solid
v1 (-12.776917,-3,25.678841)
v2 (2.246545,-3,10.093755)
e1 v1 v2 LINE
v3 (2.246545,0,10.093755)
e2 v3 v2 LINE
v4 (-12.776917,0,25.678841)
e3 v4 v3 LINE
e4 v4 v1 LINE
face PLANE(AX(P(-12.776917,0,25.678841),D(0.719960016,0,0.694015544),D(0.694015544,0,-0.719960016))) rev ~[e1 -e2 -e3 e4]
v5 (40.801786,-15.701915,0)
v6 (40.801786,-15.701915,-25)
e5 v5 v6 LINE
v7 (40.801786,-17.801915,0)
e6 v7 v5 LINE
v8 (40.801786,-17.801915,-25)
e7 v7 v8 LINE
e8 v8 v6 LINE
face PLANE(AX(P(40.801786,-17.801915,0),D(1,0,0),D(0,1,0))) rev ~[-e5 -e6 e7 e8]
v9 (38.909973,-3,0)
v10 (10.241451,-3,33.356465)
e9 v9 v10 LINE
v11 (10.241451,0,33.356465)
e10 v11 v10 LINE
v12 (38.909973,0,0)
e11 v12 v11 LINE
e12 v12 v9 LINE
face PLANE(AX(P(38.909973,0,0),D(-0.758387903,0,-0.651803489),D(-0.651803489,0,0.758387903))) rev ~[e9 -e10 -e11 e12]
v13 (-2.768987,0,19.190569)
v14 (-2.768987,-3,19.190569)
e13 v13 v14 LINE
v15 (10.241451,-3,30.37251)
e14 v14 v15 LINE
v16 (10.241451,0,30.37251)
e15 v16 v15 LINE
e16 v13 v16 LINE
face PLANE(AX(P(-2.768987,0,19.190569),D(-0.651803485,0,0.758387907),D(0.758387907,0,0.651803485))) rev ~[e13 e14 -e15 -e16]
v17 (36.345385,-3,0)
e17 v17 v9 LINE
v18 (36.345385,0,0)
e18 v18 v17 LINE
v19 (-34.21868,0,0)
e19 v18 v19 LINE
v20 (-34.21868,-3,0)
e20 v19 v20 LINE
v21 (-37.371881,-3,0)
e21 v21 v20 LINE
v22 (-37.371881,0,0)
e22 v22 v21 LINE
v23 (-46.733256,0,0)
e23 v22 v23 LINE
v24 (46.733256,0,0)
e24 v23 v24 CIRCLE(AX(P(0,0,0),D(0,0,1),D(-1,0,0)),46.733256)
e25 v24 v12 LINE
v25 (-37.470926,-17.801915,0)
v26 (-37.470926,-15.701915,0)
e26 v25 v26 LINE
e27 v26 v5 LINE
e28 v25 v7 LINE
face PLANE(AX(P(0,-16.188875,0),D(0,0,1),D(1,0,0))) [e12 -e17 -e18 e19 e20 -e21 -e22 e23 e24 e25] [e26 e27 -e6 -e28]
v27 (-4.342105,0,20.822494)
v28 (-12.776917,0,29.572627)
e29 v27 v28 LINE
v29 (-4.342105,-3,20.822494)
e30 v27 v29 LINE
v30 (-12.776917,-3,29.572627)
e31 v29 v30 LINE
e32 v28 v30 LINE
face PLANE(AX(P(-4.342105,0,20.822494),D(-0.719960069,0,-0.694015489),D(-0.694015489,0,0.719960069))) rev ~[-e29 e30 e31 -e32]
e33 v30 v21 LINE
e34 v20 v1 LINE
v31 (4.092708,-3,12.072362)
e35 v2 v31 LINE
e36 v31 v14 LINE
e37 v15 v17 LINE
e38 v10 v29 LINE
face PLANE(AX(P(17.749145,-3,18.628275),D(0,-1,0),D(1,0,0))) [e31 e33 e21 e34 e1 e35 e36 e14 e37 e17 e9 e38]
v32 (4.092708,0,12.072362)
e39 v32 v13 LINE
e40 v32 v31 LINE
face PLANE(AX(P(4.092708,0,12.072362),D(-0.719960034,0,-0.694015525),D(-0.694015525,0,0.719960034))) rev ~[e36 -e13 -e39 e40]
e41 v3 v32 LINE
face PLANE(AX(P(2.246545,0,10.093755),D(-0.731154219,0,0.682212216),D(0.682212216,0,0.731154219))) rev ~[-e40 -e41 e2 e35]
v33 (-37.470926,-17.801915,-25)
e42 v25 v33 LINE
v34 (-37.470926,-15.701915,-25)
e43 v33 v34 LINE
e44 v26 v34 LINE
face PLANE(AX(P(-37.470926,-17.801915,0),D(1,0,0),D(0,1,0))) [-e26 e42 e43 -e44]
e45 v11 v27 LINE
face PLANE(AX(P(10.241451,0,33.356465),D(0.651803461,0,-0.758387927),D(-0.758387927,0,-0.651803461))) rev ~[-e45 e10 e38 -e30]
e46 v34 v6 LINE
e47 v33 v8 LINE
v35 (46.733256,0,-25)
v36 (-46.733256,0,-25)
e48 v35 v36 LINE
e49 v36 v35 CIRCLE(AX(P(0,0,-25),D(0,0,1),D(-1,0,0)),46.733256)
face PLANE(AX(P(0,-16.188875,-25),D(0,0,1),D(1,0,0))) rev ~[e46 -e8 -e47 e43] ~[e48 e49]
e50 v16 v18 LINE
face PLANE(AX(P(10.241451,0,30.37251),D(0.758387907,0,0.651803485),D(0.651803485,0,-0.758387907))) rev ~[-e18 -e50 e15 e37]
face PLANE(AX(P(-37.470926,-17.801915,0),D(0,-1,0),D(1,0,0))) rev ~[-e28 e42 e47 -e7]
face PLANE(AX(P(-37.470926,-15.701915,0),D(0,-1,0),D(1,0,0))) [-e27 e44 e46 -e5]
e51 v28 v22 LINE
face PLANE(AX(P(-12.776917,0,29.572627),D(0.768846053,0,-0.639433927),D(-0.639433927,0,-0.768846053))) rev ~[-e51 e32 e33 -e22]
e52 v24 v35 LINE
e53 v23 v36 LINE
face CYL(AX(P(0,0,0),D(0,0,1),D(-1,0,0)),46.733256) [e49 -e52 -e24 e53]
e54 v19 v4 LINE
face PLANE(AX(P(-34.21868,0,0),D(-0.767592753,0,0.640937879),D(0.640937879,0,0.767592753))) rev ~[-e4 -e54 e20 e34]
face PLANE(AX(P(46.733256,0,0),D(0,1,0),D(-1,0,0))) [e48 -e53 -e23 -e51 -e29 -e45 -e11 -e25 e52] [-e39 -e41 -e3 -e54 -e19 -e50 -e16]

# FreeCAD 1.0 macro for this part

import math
import FreeCAD as App
import Part
import Sketcher

V = App.Vector

doc = App.newDocument("Part")
body = doc.addObject("PartDesign::Body", "Body")

# Sketch on XY plane
sketch1 = body.newObject("Sketcher::SketchObject", "Sketch")
sketch1.AttachmentSupport = (doc.getObject("XY_Plane"), [""])
sketch1.MapMode = "FlatFace"
sketch1.addGeometry(Part.LineSegment(V(46.733256, 0, 0), V(-46.733256, 0, 0)), False)
sketch1.addGeometry(Part.ArcOfCircle(Part.Circle(V(0, 0, 0), V(0, 0, 1), 46.733256), math.radians(180), math.radians(360)), False)
sketch1.addGeometry(Part.LineSegment(V(40.801786, -17.801915, 0), V(-37.470926, -17.801915, 0)), False)
sketch1.addGeometry(Part.LineSegment(V(-37.470926, -17.801915, 0), V(-37.470926, -15.701915, 0)), False)
sketch1.addGeometry(Part.LineSegment(V(-37.470926, -15.701915, 0), V(40.801786, -15.701915, 0)), False)
sketch1.addGeometry(Part.LineSegment(V(40.801786, -15.701915, 0), V(40.801786, -17.801915, 0)), False)
sketch1.addConstraint(Sketcher.Constraint("Coincident", 0, 1, 1, 2))
sketch1.addConstraint(Sketcher.Constraint("Coincident", 1, 1, 0, 2))
sketch1.addConstraint(Sketcher.Constraint("Coincident", 2, 2, 3, 1))
sketch1.addConstraint(Sketcher.Constraint("Coincident", 3, 2, 4, 1))
sketch1.addConstraint(Sketcher.Constraint("Coincident", 4, 2, 5, 1))
sketch1.addConstraint(Sketcher.Constraint("Coincident", 5, 2, 2, 1))
sketch1.addConstraint(Sketcher.Constraint("Horizontal", 0))
sketch1.addConstraint(Sketcher.Constraint("Horizontal", 2))
sketch1.addConstraint(Sketcher.Constraint("Vertical", 3))
sketch1.addConstraint(Sketcher.Constraint("Horizontal", 4))
sketch1.addConstraint(Sketcher.Constraint("Vertical", 5))
sketch1.addConstraint(Sketcher.Constraint("Coincident", 1, 3, -1, 1))
sketch1.addConstraint(Sketcher.Constraint("PointOnObject", 0, 1, -1))
sketch1.addConstraint(Sketcher.Constraint("DistanceY", 3, 1, 3, 2, 2.1))
sketch1.addConstraint(Sketcher.Constraint("Radius", 1, 46.733256))
sketch1.addConstraint(Sketcher.Constraint("DistanceX", 2, 2, 2, 1, 78.272713))
sketch1.addConstraint(Sketcher.Constraint("DistanceX", 1, 1, 2, 2, 9.262329))
sketch1.addConstraint(Sketcher.Constraint("DistanceY", 2, 2, -1, 1, 17.801915))
pad1 = body.newObject("PartDesign::Pad", "Pad")
pad1.Profile = sketch1
pad1.Length = 25
pad1.Reversed = True

# Sketch on XZ plane
sketch2 = body.newObject("Sketcher::SketchObject", "Sketch001")
sketch2.AttachmentSupport = (doc.getObject("XZ_Plane"), [""])
sketch2.MapMode = "FlatFace"
sketch2.addGeometry(Part.LineSegment(V(10.241451, 33.356465, 0), V(-4.342105, 20.822494, 0)), False)
sketch2.addGeometry(Part.LineSegment(V(-4.342105, 20.822494, 0), V(-12.776917, 29.572627, 0)), False)
sketch2.addGeometry(Part.LineSegment(V(-12.776917, 29.572627, 0), V(-37.371881, 0, 0)), False)
sketch2.addGeometry(Part.LineSegment(V(-37.371881, 0, 0), V(-34.21868, 0, 0)), False)
sketch2.addGeometry(Part.LineSegment(V(-34.21868, 0, 0), V(-12.776917, 25.678841, 0)), False)
sketch2.addGeometry(Part.LineSegment(V(-12.776917, 25.678841, 0), V(2.246545, 10.093755, 0)), False)
sketch2.addGeometry(Part.LineSegment(V(2.246545, 10.093755, 0), V(4.092708, 12.072362, 0)), False)
sketch2.addGeometry(Part.LineSegment(V(4.092708, 12.072362, 0), V(-2.768987, 19.190569, 0)), False)
sketch2.addGeometry(Part.LineSegment(V(-2.768987, 19.190569, 0), V(10.241451, 30.37251, 0)), False)
sketch2.addGeometry(Part.LineSegment(V(10.241451, 30.37251, 0), V(36.345385, 0, 0)), False)
sketch2.addGeometry(Part.LineSegment(V(36.345385, 0, 0), V(38.909973, 0, 0)), False)
sketch2.addGeometry(Part.LineSegment(V(38.909973, 0, 0), V(10.241451, 33.356465, 0)), False)
sketch2.addConstraint(Sketcher.Constraint("Coincident", 0, 2, 1, 1))
sketch2.addConstraint(Sketcher.Constraint("Coincident", 1, 2, 2, 1))
sketch2.addConstraint(Sketcher.Constraint("Coincident", 2, 2, 3, 1))
sketch2.addConstraint(Sketcher.Constraint("Coincident", 3, 2, 4, 1))
sketch2.addConstraint(Sketcher.Constraint("Coincident", 4, 2, 5, 1))
sketch2.addConstraint(Sketcher.Constraint("Coincident", 5, 2, 6, 1))
sketch2.addConstraint(Sketcher.Constraint("Coincident", 6, 2, 7, 1))
sketch2.addConstraint(Sketcher.Constraint("Coincident", 7, 2, 8, 1))
sketch2.addConstraint(Sketcher.Constraint("Coincident", 8, 2, 9, 1))
sketch2.addConstraint(Sketcher.Constraint("Coincident", 9, 2, 10, 1))
sketch2.addConstraint(Sketcher.Constraint("Coincident", 10, 2, 11, 1))
sketch2.addConstraint(Sketcher.Constraint("Coincident", 11, 2, 0, 1))
sketch2.addConstraint(Sketcher.Constraint("Horizontal", 3))
sketch2.addConstraint(Sketcher.Constraint("Horizontal", 10))
sketch2.addConstraint(Sketcher.Constraint("PointOnObject", 2, 2, -1))
sketch2.addConstraint(Sketcher.Constraint("PointOnObject", 9, 2, -1))
sketch2.addConstraint(Sketcher.Constraint("Parallel", 1, 5))
sketch2.addConstraint(Sketcher.Constraint("Parallel", 5, 7))
sketch2.addConstraint(Sketcher.Constraint("Parallel", 0, 8))
sketch2.addConstraint(Sketcher.Constraint("Perpendicular", 8, 9))
sketch2.addConstraint(Sketcher.Constraint("Parallel", 9, 11))
sketch2.addConstraint(Sketcher.Constraint("Vertical", 1, 2, 4, 2))
sketch2.addConstraint(Sketcher.Constraint("Vertical", 8, 2, 11, 2))
sketch2.addConstraint(Sketcher.Constraint("DistanceX", 3, 1, 3, 2, 3.153201))
sketch2.addConstraint(Sketcher.Constraint("DistanceX", 10, 1, 10, 2, 2.564588))
sketch2.addConstraint(Sketcher.Constraint("Distance", 0, 19.229678))
sketch2.addConstraint(Sketcher.Constraint("Distance", 2, 38.463652))
sketch2.addConstraint(Sketcher.Constraint("Distance", 4, 33.45373))
sketch2.addConstraint(Sketcher.Constraint("Distance", 6, 2.706142))
sketch2.addConstraint(Sketcher.Constraint("Distance", 9, 40.048779))
sketch2.addConstraint(Sketcher.Constraint("DistanceX", 2, 2, -1, 1, 37.371881))
sketch2.addConstraint(Sketcher.Constraint("DistanceY", -1, 1, 4, 2, 25.678841))
sketch2.addConstraint(Sketcher.Constraint("DistanceY", -1, 1, 7, 2, 19.190569))
sketch2.addConstraint(Sketcher.Constraint("DistanceX", -1, 1, 8, 2, 10.241451))
sketch2.addConstraint(Sketcher.Constraint("DistanceY", -1, 1, 8, 2, 30.37251))
sketch2.addConstraint(Sketcher.Constraint("DistanceX", 0, 2, 5, 2, 6.58865))
pad2 = body.newObject("PartDesign::Pad", "Pad001")
pad2.Profile = sketch2
pad2.Length = 3

doc.recompute()
